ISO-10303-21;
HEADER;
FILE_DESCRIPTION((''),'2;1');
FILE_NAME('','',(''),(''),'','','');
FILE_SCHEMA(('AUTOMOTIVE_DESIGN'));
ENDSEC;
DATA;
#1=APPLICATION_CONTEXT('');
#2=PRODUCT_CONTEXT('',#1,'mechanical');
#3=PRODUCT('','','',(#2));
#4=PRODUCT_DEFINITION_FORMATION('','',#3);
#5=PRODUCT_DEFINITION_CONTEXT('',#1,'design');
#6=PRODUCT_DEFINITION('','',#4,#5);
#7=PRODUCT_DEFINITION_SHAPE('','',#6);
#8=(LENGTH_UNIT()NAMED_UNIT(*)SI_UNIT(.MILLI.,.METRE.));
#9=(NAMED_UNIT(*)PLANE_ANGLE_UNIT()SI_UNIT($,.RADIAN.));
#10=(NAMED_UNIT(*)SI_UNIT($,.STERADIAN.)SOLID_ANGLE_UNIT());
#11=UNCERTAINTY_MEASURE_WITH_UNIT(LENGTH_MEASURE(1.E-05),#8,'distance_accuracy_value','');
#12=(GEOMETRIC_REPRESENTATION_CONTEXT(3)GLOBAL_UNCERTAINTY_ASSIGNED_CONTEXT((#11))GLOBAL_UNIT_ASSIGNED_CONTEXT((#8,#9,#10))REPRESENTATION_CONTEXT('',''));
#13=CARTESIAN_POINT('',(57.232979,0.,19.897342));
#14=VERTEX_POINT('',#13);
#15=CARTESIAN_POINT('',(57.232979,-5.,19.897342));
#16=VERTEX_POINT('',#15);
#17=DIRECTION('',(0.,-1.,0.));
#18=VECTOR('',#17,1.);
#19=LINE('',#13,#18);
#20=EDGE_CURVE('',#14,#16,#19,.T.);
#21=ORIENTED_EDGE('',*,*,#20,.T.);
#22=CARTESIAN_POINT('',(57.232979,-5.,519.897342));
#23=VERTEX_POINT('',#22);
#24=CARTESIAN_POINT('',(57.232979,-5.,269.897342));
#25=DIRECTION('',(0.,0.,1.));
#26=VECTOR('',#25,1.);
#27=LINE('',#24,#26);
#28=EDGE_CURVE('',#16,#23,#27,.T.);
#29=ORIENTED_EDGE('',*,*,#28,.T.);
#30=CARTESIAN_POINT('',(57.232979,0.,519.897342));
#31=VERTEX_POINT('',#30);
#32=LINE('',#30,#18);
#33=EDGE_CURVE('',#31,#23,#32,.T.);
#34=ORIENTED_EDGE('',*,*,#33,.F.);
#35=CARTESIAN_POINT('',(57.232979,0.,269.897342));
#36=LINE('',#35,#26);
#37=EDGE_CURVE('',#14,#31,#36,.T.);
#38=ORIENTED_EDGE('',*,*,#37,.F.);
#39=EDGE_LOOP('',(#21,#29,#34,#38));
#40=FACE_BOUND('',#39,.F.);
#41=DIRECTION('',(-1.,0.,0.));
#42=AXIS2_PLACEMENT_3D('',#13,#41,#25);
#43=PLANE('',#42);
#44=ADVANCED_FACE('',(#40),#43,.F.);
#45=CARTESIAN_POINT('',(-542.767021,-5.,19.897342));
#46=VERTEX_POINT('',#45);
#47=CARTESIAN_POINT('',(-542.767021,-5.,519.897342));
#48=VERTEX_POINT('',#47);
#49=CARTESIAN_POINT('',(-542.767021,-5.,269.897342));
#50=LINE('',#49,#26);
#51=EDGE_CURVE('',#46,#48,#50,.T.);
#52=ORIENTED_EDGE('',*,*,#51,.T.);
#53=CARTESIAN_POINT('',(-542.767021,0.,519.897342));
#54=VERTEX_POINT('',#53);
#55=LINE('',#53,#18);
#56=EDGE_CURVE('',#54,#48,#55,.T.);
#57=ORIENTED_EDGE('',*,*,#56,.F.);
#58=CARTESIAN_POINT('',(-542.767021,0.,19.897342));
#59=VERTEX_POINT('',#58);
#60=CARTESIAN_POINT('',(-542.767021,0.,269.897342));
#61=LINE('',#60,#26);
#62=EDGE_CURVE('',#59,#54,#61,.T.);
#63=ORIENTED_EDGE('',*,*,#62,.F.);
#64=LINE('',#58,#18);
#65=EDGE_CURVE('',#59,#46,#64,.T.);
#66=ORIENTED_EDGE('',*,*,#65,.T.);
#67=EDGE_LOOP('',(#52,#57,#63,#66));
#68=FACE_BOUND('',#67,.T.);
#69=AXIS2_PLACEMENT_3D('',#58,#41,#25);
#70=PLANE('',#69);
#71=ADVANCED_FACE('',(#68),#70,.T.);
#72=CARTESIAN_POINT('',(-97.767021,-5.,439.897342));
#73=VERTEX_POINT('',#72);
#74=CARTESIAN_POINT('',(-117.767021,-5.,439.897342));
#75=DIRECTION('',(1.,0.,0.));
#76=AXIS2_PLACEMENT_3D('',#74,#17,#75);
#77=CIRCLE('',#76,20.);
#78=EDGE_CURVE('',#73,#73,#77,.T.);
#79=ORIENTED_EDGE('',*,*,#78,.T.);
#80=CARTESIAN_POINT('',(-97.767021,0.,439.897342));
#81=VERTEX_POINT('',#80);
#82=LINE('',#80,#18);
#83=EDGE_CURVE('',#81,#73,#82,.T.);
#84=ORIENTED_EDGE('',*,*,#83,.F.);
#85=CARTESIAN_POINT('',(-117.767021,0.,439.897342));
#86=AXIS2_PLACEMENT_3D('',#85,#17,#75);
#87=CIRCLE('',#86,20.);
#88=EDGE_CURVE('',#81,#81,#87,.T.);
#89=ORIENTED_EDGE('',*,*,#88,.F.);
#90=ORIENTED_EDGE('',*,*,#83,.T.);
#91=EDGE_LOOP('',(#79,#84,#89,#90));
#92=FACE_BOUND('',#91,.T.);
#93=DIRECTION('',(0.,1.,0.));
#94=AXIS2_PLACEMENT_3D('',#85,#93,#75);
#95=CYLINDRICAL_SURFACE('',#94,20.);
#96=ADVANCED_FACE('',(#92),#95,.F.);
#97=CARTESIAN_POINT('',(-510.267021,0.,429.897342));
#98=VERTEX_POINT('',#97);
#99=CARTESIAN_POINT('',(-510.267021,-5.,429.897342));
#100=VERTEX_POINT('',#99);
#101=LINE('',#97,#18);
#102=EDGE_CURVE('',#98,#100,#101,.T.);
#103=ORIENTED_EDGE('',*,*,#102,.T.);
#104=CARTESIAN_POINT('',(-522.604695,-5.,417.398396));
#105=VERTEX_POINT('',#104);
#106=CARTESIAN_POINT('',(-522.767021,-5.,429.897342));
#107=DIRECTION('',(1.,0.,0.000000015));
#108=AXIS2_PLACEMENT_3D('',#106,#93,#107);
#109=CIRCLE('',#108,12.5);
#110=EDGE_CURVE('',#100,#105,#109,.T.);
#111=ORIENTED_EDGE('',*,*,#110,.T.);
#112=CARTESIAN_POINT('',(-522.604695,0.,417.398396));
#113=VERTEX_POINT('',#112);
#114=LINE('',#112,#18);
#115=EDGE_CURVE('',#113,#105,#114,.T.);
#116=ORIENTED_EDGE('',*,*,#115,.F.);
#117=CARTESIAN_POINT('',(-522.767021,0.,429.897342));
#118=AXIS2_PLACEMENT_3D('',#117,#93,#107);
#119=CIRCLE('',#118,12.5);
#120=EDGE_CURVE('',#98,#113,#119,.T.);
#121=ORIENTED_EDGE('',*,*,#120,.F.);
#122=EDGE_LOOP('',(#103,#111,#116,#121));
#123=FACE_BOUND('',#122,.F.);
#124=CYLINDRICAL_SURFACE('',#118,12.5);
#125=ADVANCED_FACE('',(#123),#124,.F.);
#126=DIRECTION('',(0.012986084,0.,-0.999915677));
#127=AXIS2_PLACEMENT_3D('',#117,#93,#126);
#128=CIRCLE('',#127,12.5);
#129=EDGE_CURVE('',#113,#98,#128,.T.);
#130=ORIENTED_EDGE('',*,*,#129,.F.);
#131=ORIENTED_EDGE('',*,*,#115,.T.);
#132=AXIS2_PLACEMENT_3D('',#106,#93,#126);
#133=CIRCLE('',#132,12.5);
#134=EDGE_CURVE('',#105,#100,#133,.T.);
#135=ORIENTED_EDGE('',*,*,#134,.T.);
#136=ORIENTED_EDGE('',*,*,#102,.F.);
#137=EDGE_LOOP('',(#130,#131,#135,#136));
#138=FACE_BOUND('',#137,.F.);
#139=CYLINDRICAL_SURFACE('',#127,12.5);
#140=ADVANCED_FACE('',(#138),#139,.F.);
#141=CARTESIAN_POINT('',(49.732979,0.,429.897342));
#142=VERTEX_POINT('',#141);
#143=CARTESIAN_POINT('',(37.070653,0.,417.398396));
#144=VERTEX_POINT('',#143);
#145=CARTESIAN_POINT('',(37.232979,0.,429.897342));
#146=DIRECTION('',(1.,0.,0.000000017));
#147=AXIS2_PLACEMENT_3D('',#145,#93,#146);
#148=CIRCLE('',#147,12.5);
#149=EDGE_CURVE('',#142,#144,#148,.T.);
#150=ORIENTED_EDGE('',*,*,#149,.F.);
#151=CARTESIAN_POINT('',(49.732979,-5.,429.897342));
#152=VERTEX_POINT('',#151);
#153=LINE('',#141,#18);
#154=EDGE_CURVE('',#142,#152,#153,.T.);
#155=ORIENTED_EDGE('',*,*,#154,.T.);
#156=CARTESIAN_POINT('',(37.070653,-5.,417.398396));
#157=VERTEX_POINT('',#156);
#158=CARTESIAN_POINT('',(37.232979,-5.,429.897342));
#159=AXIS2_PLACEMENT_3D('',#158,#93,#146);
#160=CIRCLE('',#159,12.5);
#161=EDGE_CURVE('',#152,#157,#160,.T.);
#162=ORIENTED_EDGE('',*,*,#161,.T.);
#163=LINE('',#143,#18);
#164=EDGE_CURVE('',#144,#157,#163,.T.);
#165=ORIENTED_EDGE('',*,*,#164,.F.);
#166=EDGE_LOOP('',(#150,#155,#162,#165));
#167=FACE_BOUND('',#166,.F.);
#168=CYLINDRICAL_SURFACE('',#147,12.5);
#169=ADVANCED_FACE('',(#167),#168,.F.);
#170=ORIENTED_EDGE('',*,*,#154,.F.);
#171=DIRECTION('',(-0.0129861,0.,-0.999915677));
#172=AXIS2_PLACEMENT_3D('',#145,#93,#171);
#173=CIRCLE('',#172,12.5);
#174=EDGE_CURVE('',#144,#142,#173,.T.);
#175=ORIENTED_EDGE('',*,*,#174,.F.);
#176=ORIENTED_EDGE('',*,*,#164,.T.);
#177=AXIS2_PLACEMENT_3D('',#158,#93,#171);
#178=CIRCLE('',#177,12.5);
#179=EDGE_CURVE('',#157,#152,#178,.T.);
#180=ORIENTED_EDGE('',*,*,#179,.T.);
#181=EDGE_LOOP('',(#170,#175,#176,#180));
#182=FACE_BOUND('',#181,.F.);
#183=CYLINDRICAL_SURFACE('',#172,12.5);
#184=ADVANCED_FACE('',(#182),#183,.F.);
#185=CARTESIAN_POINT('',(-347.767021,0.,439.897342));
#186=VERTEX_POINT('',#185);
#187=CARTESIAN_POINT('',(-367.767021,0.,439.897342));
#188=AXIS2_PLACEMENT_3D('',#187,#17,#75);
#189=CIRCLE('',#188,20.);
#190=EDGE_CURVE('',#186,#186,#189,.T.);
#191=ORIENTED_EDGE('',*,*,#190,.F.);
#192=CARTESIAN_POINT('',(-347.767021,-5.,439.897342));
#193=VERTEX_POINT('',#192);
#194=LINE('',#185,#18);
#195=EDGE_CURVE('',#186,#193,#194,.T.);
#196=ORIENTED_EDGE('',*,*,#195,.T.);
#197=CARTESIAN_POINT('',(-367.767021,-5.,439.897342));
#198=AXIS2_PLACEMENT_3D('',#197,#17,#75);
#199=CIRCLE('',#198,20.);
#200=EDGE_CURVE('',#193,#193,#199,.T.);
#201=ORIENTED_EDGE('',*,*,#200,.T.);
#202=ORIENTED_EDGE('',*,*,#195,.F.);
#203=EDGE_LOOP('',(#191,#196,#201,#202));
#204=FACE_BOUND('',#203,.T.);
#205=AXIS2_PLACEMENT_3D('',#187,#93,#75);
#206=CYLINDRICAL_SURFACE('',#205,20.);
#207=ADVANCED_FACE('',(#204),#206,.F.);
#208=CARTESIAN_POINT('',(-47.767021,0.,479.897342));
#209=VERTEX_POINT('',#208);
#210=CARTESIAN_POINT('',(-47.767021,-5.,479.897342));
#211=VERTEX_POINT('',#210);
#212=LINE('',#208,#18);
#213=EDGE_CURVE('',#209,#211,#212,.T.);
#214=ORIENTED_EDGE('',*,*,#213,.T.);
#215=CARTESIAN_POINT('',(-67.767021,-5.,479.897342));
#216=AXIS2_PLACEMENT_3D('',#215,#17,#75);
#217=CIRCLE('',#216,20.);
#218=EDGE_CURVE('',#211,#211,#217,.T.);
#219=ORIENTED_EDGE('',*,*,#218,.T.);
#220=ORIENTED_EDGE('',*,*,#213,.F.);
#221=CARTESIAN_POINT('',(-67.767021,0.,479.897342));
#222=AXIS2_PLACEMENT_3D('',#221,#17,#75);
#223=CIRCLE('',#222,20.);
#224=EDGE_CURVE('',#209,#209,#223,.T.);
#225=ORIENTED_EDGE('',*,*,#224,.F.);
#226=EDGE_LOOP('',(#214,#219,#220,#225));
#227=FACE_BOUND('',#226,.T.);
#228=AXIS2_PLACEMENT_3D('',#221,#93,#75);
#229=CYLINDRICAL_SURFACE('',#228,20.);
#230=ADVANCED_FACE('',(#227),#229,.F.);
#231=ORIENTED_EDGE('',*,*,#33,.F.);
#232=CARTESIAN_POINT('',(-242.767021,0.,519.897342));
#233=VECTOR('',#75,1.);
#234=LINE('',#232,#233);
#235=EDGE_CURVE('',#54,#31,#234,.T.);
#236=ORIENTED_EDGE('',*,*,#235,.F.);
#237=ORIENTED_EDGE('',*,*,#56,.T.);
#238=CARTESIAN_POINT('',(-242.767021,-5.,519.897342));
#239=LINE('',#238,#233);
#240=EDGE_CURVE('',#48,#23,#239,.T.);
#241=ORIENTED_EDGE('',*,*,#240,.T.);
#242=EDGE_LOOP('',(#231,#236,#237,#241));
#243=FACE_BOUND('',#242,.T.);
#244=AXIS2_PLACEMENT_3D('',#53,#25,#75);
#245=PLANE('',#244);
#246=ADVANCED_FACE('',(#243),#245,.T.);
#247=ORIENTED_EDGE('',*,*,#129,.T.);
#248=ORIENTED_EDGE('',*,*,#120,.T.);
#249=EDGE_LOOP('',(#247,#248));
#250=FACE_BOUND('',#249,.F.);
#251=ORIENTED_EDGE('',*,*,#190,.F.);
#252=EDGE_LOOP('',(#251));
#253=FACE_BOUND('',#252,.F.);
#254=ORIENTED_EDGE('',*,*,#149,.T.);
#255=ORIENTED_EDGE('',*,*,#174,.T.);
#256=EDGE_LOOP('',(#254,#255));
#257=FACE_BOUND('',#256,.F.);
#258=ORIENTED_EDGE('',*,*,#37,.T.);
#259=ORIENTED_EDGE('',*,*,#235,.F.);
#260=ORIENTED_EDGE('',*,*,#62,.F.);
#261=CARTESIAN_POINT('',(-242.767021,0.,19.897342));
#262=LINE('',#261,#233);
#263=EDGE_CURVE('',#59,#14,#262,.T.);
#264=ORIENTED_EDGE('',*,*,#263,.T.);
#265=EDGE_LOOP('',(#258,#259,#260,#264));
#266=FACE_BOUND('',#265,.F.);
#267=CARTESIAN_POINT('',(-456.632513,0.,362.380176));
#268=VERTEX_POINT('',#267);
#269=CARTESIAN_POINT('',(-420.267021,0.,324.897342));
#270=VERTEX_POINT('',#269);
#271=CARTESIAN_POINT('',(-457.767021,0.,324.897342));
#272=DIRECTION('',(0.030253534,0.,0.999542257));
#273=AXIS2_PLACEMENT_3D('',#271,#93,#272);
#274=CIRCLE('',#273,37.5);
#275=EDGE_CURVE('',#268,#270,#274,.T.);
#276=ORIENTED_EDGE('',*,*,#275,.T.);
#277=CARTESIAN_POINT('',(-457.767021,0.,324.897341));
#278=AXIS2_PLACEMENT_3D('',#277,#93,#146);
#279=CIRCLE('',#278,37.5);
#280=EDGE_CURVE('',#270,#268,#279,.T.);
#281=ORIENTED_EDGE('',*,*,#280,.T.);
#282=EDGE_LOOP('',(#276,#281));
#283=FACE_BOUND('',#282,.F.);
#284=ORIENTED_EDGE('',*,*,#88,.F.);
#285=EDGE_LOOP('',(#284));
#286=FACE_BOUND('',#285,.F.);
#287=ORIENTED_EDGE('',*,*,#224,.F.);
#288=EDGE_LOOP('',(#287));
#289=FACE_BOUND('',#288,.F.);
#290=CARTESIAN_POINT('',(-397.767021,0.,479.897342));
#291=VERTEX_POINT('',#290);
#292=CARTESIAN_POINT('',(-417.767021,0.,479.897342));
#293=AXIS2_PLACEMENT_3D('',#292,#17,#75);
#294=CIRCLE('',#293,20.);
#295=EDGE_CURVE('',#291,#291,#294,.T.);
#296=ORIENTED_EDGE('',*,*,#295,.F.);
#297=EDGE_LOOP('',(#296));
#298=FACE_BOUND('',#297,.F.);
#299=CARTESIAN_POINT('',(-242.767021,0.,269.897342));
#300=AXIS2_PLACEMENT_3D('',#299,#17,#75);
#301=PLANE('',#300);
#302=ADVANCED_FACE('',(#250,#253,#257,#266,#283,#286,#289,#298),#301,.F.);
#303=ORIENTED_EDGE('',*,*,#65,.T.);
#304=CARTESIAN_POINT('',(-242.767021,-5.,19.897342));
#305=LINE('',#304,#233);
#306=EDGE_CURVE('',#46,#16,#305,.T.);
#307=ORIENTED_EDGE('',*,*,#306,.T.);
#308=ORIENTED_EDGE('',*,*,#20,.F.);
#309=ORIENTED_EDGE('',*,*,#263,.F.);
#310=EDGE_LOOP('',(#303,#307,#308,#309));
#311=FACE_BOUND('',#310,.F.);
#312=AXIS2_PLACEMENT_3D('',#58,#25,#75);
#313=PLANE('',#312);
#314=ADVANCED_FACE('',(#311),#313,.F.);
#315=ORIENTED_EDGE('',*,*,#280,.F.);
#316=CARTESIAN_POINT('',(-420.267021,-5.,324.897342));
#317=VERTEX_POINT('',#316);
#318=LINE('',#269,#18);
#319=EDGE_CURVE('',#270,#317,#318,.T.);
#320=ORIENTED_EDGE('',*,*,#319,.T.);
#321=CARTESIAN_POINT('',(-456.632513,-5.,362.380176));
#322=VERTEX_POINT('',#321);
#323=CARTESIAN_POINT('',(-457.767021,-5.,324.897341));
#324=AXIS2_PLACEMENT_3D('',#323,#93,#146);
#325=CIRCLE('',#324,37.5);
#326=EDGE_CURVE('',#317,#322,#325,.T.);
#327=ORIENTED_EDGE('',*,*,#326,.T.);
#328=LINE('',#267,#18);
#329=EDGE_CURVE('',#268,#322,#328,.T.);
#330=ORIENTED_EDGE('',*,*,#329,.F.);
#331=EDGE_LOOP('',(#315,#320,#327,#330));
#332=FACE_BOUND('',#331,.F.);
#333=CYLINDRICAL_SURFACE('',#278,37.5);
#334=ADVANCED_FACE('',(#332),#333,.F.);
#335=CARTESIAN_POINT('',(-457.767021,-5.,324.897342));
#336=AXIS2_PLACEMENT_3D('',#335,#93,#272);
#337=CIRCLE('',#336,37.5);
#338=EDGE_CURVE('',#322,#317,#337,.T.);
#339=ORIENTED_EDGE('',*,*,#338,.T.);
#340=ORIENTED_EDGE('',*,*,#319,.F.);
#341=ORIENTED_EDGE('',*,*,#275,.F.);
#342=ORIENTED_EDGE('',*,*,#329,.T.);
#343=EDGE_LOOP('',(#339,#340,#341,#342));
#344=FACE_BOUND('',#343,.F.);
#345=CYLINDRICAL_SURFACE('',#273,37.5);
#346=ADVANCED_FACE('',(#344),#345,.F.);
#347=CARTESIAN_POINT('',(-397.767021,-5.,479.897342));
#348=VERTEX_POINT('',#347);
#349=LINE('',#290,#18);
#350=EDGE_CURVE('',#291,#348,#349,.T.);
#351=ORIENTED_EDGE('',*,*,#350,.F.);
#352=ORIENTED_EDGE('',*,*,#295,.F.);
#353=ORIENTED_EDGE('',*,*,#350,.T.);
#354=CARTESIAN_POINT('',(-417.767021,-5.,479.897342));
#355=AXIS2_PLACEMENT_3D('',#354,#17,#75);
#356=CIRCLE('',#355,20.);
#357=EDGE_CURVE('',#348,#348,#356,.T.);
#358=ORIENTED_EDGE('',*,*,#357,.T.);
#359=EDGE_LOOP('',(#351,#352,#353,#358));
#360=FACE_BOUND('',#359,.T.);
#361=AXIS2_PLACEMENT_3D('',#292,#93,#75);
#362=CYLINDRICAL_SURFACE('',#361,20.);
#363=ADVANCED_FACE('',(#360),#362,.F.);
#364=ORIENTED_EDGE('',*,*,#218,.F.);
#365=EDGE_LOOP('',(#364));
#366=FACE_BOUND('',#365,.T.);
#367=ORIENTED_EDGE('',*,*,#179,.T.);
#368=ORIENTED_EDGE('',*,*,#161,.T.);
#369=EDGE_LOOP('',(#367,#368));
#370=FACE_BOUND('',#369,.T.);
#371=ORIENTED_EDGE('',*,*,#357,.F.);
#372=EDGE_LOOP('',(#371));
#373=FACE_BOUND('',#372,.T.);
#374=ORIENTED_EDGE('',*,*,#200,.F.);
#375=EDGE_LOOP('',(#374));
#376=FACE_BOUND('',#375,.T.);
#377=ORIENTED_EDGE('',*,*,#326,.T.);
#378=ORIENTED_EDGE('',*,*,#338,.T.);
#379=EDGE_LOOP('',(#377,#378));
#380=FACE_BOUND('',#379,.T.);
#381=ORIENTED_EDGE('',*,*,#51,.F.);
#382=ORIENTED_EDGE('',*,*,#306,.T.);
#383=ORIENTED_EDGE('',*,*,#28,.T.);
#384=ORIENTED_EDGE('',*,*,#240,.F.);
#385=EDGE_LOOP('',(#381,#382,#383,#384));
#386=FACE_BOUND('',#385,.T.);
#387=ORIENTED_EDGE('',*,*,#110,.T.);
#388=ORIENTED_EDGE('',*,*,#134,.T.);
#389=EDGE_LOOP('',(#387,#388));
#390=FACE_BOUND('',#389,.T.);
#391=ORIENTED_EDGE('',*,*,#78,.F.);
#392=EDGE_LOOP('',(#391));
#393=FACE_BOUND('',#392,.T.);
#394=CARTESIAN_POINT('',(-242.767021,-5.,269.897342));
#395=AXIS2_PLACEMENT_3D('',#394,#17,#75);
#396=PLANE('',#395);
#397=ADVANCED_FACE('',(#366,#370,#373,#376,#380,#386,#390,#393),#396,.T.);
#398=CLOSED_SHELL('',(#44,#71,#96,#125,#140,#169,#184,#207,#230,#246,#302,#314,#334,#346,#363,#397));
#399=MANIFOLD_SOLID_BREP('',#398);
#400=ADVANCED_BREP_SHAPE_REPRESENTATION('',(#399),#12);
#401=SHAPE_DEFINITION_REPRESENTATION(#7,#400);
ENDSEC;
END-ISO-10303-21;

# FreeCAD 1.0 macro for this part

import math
import FreeCAD as App
import Part
import Sketcher
from FreeCAD import Vector


def add_polygon(sketch, points):
    """Adds a closed chain of lines whose ends are joined by coincident constraints."""
    first, n = sketch.GeometryCount, len(points)
    for a, b in zip(points, points[1:] + points[:1]):
        sketch.addGeometry(Part.LineSegment(App.Vector(*a, 0), App.Vector(*b, 0)), False)
    for i in range(n):
        sketch.addConstraint(Sketcher.Constraint("Coincident", first + i, 2, first + (i + 1) % n, 1))

doc = App.newDocument("Part")
body = doc.addObject("PartDesign::Body", "Body")

# Sketch on XZ plane
sketch1 = body.newObject("Sketcher::SketchObject", "Sketch")
sketch1.AttachmentSupport = (doc.getObject("XZ_Plane"), [""])
sketch1.MapMode = "FlatFace"
add_polygon(sketch1, [(-542.767021, 519.897342), (-542.767021, 19.897342), (57.232979, 19.897342), (57.232979, 519.897342)])  # lines 0-3
sketch1.addGeometry(Part.ArcOfCircle(Part.Circle(Vector(-457.767021, 324.897342, 0), Vector(0, 0, 1), 37.5), math.radians(0), math.radians(88.266336)), False)  # 4
sketch1.addGeometry(Part.ArcOfCircle(Part.Circle(Vector(-457.767021, 324.897341, 0), Vector(0, 0, 1), 37.5), math.radians(88.266335), math.radians(360.000001)), False)  # 5
sketch1.addGeometry(Part.ArcOfCircle(Part.Circle(Vector(-522.767021, 429.897342, 0), Vector(0, 0, 1), 12.5), math.radians(-89.255932), math.radians(0.000001)), False)  # 6
sketch1.addGeometry(Part.ArcOfCircle(Part.Circle(Vector(-522.767021, 429.897342, 0), Vector(0, 0, 1), 12.5), math.radians(0), math.radians(270.744069)), False)  # 7
sketch1.addGeometry(Part.Circle(Vector(-367.767021, 439.897342, 0), Vector(0, 0, 1), 20), False)  # 8
sketch1.addGeometry(Part.Circle(Vector(-417.767021, 479.897342, 0), Vector(0, 0, 1), 20), False)  # 9
sketch1.addGeometry(Part.Circle(Vector(-117.767021, 439.897342, 0), Vector(0, 0, 1), 20), False)  # 10
sketch1.addGeometry(Part.ArcOfCircle(Part.Circle(Vector(37.232979, 429.897342, 0), Vector(0, 0, 1), 12.5), math.radians(0.000001), math.radians(269.25593)), False)  # 11
sketch1.addGeometry(Part.ArcOfCircle(Part.Circle(Vector(37.232979, 429.897342, 0), Vector(0, 0, 1), 12.5), math.radians(-90.744069), math.radians(0.000001)), False)  # 12
sketch1.addGeometry(Part.Circle(Vector(-67.767021, 479.897342, 0), Vector(0, 0, 1), 20), False)  # 13
sketch1.addConstraint([
    Sketcher.Constraint("Tangent", 4, 1, 5, 2),
    Sketcher.Constraint("Coincident", 5, 1, 4, 2),
    Sketcher.Constraint("Tangent", 6, 1, 7, 2),
    Sketcher.Constraint("Coincident", 7, 1, 6, 2),
    Sketcher.Constraint("Tangent", 11, 1, 12, 2),
    Sketcher.Constraint("Coincident", 12, 1, 11, 2),
    Sketcher.Constraint("Vertical", 0),
    Sketcher.Constraint("Horizontal", 1),
    Sketcher.Constraint("Vertical", 2),
    Sketcher.Constraint("Horizontal", 3),
    Sketcher.Constraint("Equal", 8, 9),
    Sketcher.Constraint("Equal", 9, 10),
    Sketcher.Constraint("Equal", 7, 11),
    Sketcher.Constraint("Equal", 10, 13),
    Sketcher.Constraint("Horizontal", 8, 3, 10, 3),
    Sketcher.Constraint("Horizontal", 7, 3, 11, 3),
    Sketcher.Constraint("Horizontal", 9, 3, 13, 3),
    Sketcher.Constraint("Horizontal", 5, 3, 4, 1),
    Sketcher.Constraint("Horizontal", 12, 3, 7, 1),
    Sketcher.Constraint("Horizontal", 7, 1, 11, 1),
    Sketcher.Constraint("Horizontal", 6, 1, 12, 1),
    Sketcher.Constraint("Diameter", 8, 40.0),
    Sketcher.Constraint("Radius", 4, 37.5),
    Sketcher.Constraint("Radius", 6, 12.5),
    Sketcher.Constraint("DistanceX", 1, 1, 1, 2, 600.0),
    Sketcher.Constraint("DistanceY", 0, 2, 0, 1, 500.0),
    Sketcher.Constraint("DistanceX", 6, 3, 4, 3, 65.0),
    Sketcher.Constraint("DistanceY", 4, 3, 6, 3, 105.0),
    Sketcher.Constraint("DistanceX", 4, 3, 8, 3, 90.0),
    Sketcher.Constraint("DistanceY", 4, 3, 8, 3, 115.0),
    Sketcher.Constraint("DistanceX", 9, 3, 8, 3, 50.0),
    Sketcher.Constraint("DistanceY", 8, 3, 9, 3, 40.0),
    Sketcher.Constraint("DistanceX", 8, 3, 10, 3, 250.0),
    Sketcher.Constraint("DistanceX", 10, 3, 11, 3, 155.0),
    Sketcher.Constraint("DistanceX", 10, 3, 13, 3, 50.0),
    Sketcher.Constraint("DistanceX", 0, 2, 5, 3, 85.0),
    Sketcher.Constraint("DistanceY", 0, 2, 5, 3, 304.999999),
    Sketcher.Constraint("DistanceX", 4, 3, -1, 1, 457.767021),
    Sketcher.Constraint("DistanceY", -1, 1, 4, 3, 324.897342),
    Sketcher.Constraint("DistanceX", 5, 3, 5, 1, 1.134508),
    Sketcher.Constraint("DistanceX", 6, 1, 5, 1, 65.972182),
])
pad1 = body.newObject("PartDesign::Pad", "Pad")
pad1.Profile = sketch1
pad1.Length = 5

doc.recompute()
